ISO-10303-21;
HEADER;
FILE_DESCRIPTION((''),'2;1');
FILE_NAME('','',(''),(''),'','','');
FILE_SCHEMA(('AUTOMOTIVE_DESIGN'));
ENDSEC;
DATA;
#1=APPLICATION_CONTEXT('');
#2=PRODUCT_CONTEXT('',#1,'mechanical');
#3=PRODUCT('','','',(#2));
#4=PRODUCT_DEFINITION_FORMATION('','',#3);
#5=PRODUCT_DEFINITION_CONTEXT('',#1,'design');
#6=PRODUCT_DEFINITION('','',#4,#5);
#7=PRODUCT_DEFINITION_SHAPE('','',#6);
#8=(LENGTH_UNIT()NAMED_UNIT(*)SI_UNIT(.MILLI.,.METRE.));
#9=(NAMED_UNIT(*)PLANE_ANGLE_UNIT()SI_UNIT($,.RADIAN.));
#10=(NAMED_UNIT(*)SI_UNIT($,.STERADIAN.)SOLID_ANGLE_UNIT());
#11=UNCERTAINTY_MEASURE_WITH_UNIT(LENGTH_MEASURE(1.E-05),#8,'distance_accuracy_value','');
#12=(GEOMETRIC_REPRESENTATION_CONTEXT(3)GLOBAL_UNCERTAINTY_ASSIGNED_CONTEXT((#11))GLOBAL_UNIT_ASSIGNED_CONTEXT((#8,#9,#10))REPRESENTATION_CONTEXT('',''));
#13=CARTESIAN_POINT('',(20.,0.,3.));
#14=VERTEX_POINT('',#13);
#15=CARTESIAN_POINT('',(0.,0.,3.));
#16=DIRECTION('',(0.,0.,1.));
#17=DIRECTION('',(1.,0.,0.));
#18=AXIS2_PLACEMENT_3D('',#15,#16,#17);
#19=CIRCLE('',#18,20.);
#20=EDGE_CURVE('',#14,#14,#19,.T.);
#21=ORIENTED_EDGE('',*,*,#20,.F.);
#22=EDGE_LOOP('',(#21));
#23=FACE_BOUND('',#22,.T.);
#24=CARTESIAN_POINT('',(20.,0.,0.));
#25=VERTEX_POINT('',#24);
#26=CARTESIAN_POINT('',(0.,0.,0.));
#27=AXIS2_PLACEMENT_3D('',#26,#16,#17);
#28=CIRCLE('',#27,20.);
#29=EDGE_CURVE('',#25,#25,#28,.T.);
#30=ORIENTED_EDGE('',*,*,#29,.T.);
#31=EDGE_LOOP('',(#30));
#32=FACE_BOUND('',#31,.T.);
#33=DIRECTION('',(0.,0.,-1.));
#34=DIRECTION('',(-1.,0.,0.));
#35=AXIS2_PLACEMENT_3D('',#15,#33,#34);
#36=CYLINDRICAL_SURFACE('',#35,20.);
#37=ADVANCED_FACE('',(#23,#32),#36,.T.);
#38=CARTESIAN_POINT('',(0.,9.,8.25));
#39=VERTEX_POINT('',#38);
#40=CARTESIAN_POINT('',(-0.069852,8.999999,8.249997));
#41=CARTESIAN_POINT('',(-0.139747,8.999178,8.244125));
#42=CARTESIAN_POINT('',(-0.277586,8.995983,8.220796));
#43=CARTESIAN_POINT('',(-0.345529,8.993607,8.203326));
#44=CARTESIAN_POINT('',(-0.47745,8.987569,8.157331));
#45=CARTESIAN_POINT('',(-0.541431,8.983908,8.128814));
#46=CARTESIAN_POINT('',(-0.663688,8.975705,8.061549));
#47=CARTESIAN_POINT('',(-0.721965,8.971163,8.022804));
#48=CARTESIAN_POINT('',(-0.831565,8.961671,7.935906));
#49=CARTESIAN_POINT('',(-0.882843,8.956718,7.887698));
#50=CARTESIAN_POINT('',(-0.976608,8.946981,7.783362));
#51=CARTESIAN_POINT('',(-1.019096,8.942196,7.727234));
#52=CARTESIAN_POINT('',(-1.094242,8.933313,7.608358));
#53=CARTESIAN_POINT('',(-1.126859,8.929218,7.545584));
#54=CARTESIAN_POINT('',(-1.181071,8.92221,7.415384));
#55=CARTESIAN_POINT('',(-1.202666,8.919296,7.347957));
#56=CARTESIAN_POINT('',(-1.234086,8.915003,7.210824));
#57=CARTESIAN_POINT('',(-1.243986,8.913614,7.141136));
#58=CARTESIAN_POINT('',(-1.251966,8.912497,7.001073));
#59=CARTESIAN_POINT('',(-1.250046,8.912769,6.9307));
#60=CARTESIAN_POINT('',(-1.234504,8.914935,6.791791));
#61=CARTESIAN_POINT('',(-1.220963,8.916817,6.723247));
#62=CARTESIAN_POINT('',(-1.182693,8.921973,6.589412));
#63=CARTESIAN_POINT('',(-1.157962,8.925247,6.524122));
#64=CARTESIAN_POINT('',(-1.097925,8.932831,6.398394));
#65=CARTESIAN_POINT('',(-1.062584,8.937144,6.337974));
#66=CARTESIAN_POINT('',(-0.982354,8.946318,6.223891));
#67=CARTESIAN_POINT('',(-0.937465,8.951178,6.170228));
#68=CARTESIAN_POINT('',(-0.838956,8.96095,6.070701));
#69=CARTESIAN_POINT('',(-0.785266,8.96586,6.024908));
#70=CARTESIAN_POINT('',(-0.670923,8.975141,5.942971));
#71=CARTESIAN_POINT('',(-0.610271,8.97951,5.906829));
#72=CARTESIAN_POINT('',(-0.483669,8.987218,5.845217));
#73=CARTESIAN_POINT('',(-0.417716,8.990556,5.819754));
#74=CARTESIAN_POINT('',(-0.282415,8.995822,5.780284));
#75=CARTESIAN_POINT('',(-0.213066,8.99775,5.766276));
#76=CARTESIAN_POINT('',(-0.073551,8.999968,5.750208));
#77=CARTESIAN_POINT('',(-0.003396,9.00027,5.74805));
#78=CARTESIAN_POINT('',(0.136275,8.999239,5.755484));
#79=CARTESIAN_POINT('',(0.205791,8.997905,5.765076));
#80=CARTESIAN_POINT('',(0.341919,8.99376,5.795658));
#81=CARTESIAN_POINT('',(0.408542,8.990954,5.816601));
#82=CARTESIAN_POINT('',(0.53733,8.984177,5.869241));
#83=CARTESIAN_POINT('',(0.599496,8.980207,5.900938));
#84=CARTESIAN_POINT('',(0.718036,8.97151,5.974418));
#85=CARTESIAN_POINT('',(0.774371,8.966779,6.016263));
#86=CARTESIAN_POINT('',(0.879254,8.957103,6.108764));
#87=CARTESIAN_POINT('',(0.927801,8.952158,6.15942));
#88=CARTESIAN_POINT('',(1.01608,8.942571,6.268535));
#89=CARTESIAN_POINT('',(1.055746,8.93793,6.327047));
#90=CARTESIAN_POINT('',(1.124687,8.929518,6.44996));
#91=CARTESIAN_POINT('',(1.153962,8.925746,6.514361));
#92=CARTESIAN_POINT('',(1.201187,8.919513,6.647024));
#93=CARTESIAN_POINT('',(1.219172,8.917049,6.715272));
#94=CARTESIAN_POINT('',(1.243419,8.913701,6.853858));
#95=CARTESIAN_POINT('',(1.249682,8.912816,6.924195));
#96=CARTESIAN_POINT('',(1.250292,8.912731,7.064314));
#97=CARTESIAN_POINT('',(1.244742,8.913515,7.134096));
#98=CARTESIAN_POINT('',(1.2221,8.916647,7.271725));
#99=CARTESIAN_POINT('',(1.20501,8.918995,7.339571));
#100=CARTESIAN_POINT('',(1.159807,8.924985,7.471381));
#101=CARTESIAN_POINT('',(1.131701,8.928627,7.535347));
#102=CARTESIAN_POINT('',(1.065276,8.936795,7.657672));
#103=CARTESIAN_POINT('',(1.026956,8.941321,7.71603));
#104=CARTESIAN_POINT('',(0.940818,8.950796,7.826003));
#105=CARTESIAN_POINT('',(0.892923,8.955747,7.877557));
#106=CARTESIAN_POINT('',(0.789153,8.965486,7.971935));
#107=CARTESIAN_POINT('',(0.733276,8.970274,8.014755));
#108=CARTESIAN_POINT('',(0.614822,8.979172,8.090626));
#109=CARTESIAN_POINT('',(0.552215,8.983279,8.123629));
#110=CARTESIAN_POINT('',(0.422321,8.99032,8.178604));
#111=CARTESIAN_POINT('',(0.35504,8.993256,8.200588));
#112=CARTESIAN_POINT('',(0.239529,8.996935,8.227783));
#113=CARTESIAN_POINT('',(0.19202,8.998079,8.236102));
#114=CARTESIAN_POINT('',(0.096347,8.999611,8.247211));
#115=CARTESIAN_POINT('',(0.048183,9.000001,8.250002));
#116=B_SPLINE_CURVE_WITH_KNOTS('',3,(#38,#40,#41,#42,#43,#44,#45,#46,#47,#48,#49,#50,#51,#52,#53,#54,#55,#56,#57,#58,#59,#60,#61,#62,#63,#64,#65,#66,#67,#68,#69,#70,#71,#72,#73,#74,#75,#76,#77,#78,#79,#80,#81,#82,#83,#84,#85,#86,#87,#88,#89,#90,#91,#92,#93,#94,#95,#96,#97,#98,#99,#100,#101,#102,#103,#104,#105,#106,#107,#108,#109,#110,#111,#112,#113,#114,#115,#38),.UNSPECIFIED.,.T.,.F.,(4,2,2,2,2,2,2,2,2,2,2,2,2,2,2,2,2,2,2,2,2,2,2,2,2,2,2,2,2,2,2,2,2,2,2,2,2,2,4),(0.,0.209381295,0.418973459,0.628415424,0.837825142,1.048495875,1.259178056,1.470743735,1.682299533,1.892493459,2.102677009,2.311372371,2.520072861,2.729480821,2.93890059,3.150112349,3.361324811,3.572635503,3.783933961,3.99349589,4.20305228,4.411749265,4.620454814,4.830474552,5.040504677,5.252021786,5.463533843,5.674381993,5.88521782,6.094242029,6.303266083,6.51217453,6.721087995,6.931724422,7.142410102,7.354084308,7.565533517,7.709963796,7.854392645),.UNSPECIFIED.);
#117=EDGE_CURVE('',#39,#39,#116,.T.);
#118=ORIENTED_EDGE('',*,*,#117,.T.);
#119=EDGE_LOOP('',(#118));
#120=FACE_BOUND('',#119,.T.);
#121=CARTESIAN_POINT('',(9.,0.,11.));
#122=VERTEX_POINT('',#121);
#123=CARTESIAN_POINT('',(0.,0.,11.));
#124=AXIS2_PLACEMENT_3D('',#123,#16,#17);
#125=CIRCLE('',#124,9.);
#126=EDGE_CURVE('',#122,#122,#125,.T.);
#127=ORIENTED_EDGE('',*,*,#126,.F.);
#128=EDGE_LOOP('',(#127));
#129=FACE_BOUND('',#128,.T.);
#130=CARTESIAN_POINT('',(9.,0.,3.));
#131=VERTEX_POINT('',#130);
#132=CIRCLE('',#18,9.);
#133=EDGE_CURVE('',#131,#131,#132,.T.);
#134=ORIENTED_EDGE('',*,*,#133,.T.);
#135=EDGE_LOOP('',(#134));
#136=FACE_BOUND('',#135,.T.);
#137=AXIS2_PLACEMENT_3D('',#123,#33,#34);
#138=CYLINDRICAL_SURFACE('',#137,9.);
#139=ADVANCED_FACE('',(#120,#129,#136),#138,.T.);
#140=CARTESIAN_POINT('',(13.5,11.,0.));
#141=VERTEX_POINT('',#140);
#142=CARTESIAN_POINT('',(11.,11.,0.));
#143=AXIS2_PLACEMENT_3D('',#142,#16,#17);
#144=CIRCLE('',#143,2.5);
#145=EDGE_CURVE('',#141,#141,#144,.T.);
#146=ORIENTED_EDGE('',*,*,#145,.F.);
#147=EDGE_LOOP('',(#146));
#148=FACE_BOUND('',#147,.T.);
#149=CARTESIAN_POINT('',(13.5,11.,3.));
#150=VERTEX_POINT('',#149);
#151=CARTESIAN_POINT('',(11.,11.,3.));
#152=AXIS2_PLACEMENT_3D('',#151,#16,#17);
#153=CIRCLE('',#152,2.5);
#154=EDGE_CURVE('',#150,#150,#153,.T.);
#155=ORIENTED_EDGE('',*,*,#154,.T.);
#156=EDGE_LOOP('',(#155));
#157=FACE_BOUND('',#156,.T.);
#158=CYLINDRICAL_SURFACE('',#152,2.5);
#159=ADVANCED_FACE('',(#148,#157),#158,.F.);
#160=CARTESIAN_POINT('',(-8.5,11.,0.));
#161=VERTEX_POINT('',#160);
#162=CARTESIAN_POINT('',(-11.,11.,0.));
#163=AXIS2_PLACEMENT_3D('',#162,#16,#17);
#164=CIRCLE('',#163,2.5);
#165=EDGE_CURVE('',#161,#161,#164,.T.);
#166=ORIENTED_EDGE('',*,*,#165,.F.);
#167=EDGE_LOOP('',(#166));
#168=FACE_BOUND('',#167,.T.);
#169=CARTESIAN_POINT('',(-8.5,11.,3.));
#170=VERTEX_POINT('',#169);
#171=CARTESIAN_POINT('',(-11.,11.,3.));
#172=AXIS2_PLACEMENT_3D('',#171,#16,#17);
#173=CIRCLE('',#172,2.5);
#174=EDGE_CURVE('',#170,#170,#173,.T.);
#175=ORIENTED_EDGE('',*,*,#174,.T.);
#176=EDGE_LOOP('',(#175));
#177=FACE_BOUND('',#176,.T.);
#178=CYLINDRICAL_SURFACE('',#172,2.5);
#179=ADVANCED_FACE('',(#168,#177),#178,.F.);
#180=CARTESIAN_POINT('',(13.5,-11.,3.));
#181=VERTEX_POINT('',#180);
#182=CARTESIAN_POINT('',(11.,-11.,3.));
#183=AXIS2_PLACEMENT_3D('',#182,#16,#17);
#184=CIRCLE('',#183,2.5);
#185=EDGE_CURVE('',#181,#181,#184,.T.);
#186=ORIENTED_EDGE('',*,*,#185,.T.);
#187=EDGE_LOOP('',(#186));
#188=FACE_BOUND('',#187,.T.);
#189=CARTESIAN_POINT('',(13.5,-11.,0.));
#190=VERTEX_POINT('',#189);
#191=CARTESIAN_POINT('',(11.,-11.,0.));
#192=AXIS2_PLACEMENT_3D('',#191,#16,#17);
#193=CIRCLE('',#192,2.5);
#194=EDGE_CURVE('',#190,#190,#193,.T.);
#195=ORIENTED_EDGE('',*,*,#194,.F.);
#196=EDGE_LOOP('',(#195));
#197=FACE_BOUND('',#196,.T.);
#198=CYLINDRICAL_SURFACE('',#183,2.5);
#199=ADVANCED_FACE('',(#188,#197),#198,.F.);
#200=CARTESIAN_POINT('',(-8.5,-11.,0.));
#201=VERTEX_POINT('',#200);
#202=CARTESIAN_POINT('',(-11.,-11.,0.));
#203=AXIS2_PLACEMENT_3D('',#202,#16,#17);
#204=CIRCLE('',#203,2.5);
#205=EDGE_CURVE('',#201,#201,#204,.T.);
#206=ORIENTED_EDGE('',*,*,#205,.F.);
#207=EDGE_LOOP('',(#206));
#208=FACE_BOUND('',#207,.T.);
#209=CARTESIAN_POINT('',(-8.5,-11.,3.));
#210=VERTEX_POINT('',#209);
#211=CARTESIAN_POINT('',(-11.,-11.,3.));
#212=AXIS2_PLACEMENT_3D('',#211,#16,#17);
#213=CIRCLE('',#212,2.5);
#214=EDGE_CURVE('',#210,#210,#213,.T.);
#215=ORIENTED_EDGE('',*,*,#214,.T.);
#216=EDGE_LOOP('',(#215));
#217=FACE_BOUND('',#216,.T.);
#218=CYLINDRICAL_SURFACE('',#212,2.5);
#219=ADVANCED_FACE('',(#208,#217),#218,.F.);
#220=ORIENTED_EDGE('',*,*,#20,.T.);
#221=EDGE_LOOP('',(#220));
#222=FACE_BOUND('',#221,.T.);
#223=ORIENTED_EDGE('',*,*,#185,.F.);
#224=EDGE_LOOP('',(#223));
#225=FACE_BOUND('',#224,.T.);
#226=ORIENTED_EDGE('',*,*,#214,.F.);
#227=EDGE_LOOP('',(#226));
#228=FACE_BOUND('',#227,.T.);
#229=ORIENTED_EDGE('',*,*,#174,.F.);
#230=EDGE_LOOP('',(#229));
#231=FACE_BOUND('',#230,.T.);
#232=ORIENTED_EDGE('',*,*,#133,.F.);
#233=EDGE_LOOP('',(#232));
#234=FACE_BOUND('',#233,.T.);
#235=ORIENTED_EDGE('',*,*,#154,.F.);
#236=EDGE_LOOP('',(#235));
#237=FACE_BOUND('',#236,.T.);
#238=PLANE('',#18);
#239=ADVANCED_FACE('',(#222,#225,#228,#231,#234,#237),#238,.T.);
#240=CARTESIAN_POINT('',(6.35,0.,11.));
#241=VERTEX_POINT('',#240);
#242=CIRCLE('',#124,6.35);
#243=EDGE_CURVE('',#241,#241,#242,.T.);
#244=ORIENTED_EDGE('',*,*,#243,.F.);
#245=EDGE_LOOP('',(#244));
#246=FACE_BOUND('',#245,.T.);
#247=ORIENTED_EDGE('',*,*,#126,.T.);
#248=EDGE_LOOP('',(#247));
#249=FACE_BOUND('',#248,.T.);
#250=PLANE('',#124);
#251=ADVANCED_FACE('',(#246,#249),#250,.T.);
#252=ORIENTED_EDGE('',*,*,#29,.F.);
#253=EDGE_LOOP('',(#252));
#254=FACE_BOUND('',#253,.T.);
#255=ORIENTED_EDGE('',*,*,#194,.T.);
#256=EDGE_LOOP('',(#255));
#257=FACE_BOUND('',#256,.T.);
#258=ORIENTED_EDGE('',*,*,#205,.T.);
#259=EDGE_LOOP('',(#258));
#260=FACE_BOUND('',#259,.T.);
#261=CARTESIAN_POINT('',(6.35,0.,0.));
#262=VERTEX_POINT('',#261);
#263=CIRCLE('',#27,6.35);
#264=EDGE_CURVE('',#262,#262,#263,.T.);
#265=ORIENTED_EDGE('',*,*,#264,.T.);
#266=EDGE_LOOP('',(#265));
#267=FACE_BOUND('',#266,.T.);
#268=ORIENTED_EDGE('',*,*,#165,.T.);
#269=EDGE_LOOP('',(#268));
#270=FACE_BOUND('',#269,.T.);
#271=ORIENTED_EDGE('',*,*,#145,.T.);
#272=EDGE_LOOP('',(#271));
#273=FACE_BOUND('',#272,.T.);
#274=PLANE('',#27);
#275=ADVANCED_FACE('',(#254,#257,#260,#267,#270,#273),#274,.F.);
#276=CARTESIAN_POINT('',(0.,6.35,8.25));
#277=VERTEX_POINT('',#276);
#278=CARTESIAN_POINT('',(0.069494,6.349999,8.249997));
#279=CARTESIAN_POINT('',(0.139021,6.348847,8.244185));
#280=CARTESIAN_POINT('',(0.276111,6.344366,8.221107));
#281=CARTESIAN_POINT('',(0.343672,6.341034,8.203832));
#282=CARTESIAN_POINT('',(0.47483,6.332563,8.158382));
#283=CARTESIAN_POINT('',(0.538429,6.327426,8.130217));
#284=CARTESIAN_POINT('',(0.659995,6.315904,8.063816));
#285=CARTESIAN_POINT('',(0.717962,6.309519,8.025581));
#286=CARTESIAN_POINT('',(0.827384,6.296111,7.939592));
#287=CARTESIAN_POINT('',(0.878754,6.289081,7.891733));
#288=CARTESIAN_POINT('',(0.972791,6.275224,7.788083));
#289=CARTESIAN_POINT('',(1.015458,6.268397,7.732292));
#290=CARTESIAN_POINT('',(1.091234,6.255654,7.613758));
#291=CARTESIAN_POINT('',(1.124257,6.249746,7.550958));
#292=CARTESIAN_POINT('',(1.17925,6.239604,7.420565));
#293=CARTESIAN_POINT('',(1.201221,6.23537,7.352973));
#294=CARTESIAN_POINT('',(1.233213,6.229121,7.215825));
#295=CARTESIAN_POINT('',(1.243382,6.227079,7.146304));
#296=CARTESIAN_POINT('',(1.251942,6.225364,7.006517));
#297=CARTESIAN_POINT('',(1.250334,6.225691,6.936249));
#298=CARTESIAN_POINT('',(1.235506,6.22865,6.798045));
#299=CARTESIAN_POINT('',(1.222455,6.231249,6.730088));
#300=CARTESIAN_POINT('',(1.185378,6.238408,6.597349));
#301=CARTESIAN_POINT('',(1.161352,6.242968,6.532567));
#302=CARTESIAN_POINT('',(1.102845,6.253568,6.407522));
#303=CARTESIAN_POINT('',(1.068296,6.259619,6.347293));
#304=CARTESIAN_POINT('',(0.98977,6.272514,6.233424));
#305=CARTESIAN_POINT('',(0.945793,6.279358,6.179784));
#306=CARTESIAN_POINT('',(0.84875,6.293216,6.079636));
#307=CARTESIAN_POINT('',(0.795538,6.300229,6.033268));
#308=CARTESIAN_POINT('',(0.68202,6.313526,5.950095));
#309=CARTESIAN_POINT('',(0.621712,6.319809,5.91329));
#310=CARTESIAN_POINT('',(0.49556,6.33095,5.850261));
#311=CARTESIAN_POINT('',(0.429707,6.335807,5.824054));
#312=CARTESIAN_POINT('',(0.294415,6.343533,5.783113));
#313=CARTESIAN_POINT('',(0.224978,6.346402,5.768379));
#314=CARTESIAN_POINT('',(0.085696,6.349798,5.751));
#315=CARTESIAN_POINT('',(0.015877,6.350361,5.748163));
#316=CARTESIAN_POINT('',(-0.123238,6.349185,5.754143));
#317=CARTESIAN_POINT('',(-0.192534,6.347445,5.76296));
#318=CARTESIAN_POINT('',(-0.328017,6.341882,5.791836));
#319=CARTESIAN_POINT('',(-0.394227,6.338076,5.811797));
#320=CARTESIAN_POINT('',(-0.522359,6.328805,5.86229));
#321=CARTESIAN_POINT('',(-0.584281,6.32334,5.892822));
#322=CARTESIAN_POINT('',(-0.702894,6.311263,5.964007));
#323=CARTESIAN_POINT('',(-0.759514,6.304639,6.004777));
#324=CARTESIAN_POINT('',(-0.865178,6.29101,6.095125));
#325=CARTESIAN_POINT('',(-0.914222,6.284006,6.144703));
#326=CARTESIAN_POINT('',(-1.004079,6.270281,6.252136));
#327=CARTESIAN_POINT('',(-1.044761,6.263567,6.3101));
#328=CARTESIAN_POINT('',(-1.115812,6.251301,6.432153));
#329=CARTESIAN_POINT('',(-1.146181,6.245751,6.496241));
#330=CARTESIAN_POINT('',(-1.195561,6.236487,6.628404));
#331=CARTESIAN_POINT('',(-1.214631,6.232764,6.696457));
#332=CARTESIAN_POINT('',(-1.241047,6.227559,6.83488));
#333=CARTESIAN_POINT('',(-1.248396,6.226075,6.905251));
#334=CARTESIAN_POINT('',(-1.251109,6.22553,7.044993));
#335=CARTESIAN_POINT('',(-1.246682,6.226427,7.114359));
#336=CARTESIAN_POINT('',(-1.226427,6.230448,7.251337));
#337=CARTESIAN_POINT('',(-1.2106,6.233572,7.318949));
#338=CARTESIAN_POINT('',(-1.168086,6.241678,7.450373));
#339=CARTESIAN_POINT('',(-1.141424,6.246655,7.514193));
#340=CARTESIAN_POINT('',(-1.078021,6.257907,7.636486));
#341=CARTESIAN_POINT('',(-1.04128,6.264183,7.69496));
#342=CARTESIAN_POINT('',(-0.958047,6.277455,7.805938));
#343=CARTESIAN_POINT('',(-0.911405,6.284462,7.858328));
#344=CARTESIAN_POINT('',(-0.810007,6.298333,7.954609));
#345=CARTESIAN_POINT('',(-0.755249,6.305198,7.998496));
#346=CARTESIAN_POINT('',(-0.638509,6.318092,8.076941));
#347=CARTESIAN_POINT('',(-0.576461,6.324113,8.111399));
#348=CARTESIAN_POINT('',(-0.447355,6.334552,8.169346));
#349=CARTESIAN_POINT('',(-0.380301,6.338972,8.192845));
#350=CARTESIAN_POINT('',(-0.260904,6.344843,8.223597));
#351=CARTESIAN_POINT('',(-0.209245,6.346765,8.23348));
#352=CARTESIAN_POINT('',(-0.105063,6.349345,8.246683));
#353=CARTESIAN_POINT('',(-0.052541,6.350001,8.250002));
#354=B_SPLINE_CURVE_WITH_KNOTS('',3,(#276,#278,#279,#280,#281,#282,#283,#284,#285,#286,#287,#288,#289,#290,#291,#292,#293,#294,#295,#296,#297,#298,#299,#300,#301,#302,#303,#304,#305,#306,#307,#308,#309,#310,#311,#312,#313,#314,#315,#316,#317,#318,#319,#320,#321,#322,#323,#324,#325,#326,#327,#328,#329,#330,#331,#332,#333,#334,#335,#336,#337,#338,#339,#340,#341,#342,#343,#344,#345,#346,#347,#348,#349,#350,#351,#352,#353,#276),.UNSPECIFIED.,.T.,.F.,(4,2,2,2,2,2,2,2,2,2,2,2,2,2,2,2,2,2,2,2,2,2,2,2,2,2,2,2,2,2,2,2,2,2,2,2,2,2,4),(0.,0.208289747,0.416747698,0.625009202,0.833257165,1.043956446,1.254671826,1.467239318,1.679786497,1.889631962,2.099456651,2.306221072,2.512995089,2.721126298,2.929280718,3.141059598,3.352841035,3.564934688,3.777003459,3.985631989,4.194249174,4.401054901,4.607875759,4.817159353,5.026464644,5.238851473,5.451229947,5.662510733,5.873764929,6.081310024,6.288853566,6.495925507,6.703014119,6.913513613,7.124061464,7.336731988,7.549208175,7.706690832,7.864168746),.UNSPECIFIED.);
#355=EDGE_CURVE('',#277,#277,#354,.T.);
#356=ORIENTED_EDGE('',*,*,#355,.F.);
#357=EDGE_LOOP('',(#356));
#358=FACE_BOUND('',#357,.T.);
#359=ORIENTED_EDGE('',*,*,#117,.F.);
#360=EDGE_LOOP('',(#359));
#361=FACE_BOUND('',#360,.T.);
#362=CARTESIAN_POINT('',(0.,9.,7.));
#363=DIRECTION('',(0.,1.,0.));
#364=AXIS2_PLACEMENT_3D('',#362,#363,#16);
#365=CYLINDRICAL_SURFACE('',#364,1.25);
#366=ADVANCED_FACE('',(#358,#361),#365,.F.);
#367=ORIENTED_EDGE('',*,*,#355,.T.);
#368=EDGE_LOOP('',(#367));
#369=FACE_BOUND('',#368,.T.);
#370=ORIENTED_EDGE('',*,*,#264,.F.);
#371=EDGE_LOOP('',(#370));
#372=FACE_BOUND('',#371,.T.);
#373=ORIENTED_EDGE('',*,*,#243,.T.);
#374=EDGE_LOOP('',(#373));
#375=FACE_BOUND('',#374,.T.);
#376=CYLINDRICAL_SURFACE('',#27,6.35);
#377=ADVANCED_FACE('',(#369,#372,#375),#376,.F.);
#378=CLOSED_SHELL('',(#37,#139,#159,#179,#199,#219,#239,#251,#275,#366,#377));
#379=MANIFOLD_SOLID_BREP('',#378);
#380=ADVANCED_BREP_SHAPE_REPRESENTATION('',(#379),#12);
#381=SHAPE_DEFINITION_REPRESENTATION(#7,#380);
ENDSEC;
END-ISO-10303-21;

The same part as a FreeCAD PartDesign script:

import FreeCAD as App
import Part
import Sketcher

V = App.Vector

doc = App.newDocument("Part")
body = doc.addObject("PartDesign::Body", "Body")

# Sketch on XY plane
sketch1 = doc.addObject("Sketcher::SketchObject", "Sketch")
body.addObject(sketch1)
sketch1.AttachmentSupport = (doc.XY_Plane, [""])
sketch1.MapMode = "FlatFace"
sketch1.addGeometry(Part.Circle(V(0, 0, 0), V(0, 0, 1), 20), False)
sketch1.addConstraint(Sketcher.Constraint("Coincident", 0, 3, -1, 1))
sketch1.addConstraint(Sketcher.Constraint("Diameter", 0, 40.0))
pad1 = doc.addObject("PartDesign::Pad", "Pad")
body.addObject(pad1)
pad1.Profile = sketch1
pad1.Length = 3

# Sketch on XY plane
sketch2 = doc.addObject("Sketcher::SketchObject", "Sketch001")
body.addObject(sketch2)
sketch2.AttachmentSupport = (doc.XY_Plane, [""])
sketch2.MapMode = "FlatFace"
sketch2.AttachmentOffset = App.Placement(V(0, 0, 3), App.Rotation())
sketch2.addGeometry(Part.Circle(V(0, 0, 0), V(0, 0, 1), 9), False)
sketch2.addConstraint(Sketcher.Constraint("Coincident", 0, 3, -1, 1))
sketch2.addConstraint(Sketcher.Constraint("Diameter", 0, 18.0))
pad2 = doc.addObject("PartDesign::Pad", "Pad001")
body.addObject(pad2)
pad2.Profile = sketch2
pad2.Length = 8

# Sketch on XY plane
sketch3 = doc.addObject("Sketcher::SketchObject", "Sketch002")
body.addObject(sketch3)
sketch3.AttachmentSupport = (doc.XY_Plane, [""])
sketch3.MapMode = "FlatFace"
sketch3.AttachmentOffset = App.Placement(V(0, 0, 11), App.Rotation())
sketch3.addGeometry(Part.Circle(V(0, 0, 0), V(0, 0, 1), 6), False)
sketch3.addConstraint(Sketcher.Constraint("Coincident", 0, 3, -1, 1))
sketch3.addConstraint(Sketcher.Constraint("Diameter", 0, 12.7))
pocket1 = doc.addObject("PartDesign::Pocket", "Pocket")
body.addObject(pocket1)
pocket1.Profile = sketch3
pocket1.Type = "ThroughAll"

# Sketch on XZ plane
sketch4 = doc.addObject("Sketcher::SketchObject", "Sketch003")
body.addObject(sketch4)
sketch4.AttachmentSupport = (doc.XZ_Plane, [""])
sketch4.MapMode = "FlatFace"
sketch4.AttachmentOffset = App.Placement(V(0, 0, -9), App.Rotation())
sketch4.addGeometry(Part.Circle(V(0, 7, 0), V(0, 0, 1), 1.2), False)
sketch4.addConstraint(Sketcher.Constraint("PointOnObject", 0, 3, -2))
sketch4.addConstraint(Sketcher.Constraint("Diameter", 0, 2.5))
sketch4.addConstraint(Sketcher.Constraint("DistanceY", -1, 1, 0, 3, 7.0))
pocket2 = doc.addObject("PartDesign::Pocket", "Pocket001")
body.addObject(pocket2)
pocket2.Profile = sketch4
pocket2.Type = "UpToFirst"
pocket2.Reversed = True

# Sketch on XY plane
sketch5 = doc.addObject("Sketcher::SketchObject", "Sketch004")
body.addObject(sketch5)
sketch5.AttachmentSupport = (doc.XY_Plane, [""])
sketch5.MapMode = "FlatFace"
sketch5.AttachmentOffset = App.Placement(V(0, 0, 3), App.Rotation())
sketch5.addGeometry(Part.Circle(V(11, 11, 0), V(0, 0, 1), 2.5), False)
sketch5.addConstraint(Sketcher.Constraint("Diameter", 0, 5.0))
sketch5.addConstraint(Sketcher.Constraint("DistanceX", -1, 1, 0, 3, 11.0))
sketch5.addConstraint(Sketcher.Constraint("DistanceY", -1, 1, 0, 3, 11.0))
doc.recompute()
hole = doc.addObject("PartDesign::Hole", "Hole")
body.addObject(hole)
hole.Profile = sketch5
hole.ThreadType = "None"
hole.Diameter = 5
hole.DepthType = "ThroughAll"
doc.recompute()

polarpattern = doc.addObject("PartDesign::PolarPattern", "PolarPattern")
body.addObject(polarpattern)
polarpattern.Originals = [hole]
polarpattern.Axis = (doc.Z_Axis, [""])
polarpattern.Angle = 360
polarpattern.Occurrences = 4
body.Tip = polarpattern

doc.recompute()
